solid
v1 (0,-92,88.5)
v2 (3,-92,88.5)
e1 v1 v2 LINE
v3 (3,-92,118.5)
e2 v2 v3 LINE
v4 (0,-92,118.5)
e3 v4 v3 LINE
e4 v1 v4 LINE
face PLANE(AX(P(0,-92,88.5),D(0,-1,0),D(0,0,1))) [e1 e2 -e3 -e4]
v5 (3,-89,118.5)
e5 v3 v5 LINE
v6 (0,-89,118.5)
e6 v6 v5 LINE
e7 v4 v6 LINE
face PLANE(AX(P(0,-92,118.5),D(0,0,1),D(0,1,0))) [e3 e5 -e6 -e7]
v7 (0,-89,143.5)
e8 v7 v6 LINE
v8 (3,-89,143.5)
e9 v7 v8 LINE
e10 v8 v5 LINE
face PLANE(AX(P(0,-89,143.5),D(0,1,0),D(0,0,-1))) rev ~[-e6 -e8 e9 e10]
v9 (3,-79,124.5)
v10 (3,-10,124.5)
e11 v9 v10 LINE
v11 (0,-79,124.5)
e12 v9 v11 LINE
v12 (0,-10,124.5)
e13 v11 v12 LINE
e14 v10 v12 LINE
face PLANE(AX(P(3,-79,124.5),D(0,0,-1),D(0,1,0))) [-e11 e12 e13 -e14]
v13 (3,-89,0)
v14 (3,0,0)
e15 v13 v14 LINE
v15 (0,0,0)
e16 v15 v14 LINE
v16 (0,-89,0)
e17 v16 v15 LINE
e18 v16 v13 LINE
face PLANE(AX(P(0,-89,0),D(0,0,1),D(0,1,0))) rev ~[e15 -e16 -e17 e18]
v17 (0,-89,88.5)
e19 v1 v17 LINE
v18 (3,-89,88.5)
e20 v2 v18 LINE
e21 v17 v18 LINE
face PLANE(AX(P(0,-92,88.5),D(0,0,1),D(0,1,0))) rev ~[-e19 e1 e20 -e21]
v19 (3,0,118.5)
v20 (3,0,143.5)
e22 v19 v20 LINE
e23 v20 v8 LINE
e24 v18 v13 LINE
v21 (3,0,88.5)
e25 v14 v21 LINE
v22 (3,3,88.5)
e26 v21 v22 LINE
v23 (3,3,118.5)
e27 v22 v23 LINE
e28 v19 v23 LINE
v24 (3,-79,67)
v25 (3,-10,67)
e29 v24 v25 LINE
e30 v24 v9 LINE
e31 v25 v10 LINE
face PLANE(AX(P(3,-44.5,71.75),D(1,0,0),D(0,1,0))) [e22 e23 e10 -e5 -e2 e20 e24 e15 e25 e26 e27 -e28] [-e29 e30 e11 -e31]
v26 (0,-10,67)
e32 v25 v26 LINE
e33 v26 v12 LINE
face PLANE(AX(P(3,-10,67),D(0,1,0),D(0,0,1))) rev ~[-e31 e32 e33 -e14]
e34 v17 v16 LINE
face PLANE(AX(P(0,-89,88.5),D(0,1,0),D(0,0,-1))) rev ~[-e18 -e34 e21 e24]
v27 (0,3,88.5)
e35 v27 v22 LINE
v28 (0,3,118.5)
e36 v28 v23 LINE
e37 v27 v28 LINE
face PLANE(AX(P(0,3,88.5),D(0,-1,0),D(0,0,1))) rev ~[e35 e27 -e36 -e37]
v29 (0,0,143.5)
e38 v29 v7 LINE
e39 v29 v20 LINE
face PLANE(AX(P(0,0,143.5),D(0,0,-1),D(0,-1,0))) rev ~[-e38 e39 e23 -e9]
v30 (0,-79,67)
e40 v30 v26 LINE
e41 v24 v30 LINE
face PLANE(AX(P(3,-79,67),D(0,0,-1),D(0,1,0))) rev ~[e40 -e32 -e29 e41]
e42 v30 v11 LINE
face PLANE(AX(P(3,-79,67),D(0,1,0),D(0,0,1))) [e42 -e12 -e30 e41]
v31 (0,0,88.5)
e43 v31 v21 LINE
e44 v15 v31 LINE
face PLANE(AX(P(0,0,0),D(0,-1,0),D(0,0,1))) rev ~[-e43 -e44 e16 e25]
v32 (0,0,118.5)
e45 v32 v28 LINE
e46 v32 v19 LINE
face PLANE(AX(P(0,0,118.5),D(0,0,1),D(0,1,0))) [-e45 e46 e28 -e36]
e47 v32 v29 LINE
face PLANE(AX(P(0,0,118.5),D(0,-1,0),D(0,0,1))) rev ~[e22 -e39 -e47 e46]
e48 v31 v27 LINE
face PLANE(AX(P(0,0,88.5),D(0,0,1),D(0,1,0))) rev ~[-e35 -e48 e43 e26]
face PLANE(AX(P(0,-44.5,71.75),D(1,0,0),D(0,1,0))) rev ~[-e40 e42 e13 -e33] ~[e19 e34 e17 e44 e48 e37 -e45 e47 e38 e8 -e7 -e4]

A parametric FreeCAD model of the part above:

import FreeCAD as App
import Part
import Sketcher


def add_polygon(sketch, points):
    """Adds a closed chain of lines whose ends are joined by coincident constraints."""
    first, n = sketch.GeometryCount, len(points)
    for a, b in zip(points, points[1:] + points[:1]):
        sketch.addGeometry(Part.LineSegment(App.Vector(*a, 0), App.Vector(*b, 0)), False)
    for i in range(n):
        sketch.addConstraint(Sketcher.Constraint("Coincident", first + i, 2, first + (i + 1) % n, 1))

doc = App.newDocument("Part")
body = doc.addObject("PartDesign::Body", "Body")

# Sketch on YZ plane
sketch1 = doc.addObject("Sketcher::SketchObject", "Sketch")
body.addObject(sketch1)
sketch1.AttachmentSupport = (doc.YZ_Plane, [""])
sketch1.MapMode = "FlatFace"
add_polygon(sketch1, [(-89, 0), (0, 0), (0, 88.5), (3, 88.5), (3, 118.5), (0, 118.5), (0, 143.5), (-89, 143.5), (-89, 118.5), (-92, 118.5), (-92, 88.5), (-89, 88.5)])  # lines 0-11
sketch1.addConstraint([
    Sketcher.Constraint("Horizontal", 0),
    Sketcher.Constraint("Vertical", 1),
    Sketcher.Constraint("Horizontal", 2),
    Sketcher.Constraint("Vertical", 3),
    Sketcher.Constraint("Horizontal", 4),
    Sketcher.Constraint("Vertical", 5),
    Sketcher.Constraint("Horizontal", 6),
    Sketcher.Constraint("Vertical", 7),
    Sketcher.Constraint("Horizontal", 8),
    Sketcher.Constraint("Vertical", 9),
    Sketcher.Constraint("Horizontal", 10),
    Sketcher.Constraint("Vertical", 11),
    Sketcher.Constraint("Coincident", 0, 2, -1, 1),
    Sketcher.Constraint("PointOnObject", 4, 2, -2),
    Sketcher.Constraint("Horizontal", 4, 2, 7, 2),
    Sketcher.Constraint("Horizontal", 2, 2, 9, 2),
    Sketcher.Constraint("Vertical", 7, 2, 10, 2),
    Sketcher.Constraint("Equal", 4, 8),
    Sketcher.Constraint("DistanceX", 0, 1, 0, 2, 89.0),
    Sketcher.Constraint("DistanceX", 2, 1, 2, 2, 3.0),
    Sketcher.Constraint("DistanceY", 3, 1, 3, 2, 30.0),
    Sketcher.Constraint("DistanceY", 5, 1, 5, 2, 25.0),
    Sketcher.Constraint("DistanceY", 1, 1, 1, 2, 88.5),
])
pad1 = doc.addObject("PartDesign::Pad", "Pad")
body.addObject(pad1)
pad1.Profile = sketch1
pad1.Length = 3

# Sketch on YZ plane
sketch2 = doc.addObject("Sketcher::SketchObject", "Sketch001")
body.addObject(sketch2)
sketch2.AttachmentSupport = (doc.YZ_Plane, [""])
sketch2.MapMode = "FlatFace"
sketch2.AttachmentOffset = App.Placement(App.Vector(0, 0, 3), App.Rotation())
add_polygon(sketch2, [(-79, 124.5), (-79, 67), (-10, 67), (-10, 124.5)])  # lines 0-3
sketch2.addConstraint([
    Sketcher.Constraint("Vertical", 0),
    Sketcher.Constraint("Horizontal", 1),
    Sketcher.Constraint("Vertical", 2),
    Sketcher.Constraint("Horizontal", 3),
    Sketcher.Constraint("DistanceX", 1, 1, 1, 2, 69.0),
    Sketcher.Constraint("DistanceY", 0, 2, 0, 1, 57.5),
    Sketcher.Constraint("DistanceX", 0, 2, -1, 1, 79.0),
    Sketcher.Constraint("DistanceY", -1, 1, 0, 2, 67.0),
])
pocket1 = doc.addObject("PartDesign::Pocket", "Pocket")
body.addObject(pocket1)
pocket1.Profile = sketch2
pocket1.Length = 25

doc.recompute()
